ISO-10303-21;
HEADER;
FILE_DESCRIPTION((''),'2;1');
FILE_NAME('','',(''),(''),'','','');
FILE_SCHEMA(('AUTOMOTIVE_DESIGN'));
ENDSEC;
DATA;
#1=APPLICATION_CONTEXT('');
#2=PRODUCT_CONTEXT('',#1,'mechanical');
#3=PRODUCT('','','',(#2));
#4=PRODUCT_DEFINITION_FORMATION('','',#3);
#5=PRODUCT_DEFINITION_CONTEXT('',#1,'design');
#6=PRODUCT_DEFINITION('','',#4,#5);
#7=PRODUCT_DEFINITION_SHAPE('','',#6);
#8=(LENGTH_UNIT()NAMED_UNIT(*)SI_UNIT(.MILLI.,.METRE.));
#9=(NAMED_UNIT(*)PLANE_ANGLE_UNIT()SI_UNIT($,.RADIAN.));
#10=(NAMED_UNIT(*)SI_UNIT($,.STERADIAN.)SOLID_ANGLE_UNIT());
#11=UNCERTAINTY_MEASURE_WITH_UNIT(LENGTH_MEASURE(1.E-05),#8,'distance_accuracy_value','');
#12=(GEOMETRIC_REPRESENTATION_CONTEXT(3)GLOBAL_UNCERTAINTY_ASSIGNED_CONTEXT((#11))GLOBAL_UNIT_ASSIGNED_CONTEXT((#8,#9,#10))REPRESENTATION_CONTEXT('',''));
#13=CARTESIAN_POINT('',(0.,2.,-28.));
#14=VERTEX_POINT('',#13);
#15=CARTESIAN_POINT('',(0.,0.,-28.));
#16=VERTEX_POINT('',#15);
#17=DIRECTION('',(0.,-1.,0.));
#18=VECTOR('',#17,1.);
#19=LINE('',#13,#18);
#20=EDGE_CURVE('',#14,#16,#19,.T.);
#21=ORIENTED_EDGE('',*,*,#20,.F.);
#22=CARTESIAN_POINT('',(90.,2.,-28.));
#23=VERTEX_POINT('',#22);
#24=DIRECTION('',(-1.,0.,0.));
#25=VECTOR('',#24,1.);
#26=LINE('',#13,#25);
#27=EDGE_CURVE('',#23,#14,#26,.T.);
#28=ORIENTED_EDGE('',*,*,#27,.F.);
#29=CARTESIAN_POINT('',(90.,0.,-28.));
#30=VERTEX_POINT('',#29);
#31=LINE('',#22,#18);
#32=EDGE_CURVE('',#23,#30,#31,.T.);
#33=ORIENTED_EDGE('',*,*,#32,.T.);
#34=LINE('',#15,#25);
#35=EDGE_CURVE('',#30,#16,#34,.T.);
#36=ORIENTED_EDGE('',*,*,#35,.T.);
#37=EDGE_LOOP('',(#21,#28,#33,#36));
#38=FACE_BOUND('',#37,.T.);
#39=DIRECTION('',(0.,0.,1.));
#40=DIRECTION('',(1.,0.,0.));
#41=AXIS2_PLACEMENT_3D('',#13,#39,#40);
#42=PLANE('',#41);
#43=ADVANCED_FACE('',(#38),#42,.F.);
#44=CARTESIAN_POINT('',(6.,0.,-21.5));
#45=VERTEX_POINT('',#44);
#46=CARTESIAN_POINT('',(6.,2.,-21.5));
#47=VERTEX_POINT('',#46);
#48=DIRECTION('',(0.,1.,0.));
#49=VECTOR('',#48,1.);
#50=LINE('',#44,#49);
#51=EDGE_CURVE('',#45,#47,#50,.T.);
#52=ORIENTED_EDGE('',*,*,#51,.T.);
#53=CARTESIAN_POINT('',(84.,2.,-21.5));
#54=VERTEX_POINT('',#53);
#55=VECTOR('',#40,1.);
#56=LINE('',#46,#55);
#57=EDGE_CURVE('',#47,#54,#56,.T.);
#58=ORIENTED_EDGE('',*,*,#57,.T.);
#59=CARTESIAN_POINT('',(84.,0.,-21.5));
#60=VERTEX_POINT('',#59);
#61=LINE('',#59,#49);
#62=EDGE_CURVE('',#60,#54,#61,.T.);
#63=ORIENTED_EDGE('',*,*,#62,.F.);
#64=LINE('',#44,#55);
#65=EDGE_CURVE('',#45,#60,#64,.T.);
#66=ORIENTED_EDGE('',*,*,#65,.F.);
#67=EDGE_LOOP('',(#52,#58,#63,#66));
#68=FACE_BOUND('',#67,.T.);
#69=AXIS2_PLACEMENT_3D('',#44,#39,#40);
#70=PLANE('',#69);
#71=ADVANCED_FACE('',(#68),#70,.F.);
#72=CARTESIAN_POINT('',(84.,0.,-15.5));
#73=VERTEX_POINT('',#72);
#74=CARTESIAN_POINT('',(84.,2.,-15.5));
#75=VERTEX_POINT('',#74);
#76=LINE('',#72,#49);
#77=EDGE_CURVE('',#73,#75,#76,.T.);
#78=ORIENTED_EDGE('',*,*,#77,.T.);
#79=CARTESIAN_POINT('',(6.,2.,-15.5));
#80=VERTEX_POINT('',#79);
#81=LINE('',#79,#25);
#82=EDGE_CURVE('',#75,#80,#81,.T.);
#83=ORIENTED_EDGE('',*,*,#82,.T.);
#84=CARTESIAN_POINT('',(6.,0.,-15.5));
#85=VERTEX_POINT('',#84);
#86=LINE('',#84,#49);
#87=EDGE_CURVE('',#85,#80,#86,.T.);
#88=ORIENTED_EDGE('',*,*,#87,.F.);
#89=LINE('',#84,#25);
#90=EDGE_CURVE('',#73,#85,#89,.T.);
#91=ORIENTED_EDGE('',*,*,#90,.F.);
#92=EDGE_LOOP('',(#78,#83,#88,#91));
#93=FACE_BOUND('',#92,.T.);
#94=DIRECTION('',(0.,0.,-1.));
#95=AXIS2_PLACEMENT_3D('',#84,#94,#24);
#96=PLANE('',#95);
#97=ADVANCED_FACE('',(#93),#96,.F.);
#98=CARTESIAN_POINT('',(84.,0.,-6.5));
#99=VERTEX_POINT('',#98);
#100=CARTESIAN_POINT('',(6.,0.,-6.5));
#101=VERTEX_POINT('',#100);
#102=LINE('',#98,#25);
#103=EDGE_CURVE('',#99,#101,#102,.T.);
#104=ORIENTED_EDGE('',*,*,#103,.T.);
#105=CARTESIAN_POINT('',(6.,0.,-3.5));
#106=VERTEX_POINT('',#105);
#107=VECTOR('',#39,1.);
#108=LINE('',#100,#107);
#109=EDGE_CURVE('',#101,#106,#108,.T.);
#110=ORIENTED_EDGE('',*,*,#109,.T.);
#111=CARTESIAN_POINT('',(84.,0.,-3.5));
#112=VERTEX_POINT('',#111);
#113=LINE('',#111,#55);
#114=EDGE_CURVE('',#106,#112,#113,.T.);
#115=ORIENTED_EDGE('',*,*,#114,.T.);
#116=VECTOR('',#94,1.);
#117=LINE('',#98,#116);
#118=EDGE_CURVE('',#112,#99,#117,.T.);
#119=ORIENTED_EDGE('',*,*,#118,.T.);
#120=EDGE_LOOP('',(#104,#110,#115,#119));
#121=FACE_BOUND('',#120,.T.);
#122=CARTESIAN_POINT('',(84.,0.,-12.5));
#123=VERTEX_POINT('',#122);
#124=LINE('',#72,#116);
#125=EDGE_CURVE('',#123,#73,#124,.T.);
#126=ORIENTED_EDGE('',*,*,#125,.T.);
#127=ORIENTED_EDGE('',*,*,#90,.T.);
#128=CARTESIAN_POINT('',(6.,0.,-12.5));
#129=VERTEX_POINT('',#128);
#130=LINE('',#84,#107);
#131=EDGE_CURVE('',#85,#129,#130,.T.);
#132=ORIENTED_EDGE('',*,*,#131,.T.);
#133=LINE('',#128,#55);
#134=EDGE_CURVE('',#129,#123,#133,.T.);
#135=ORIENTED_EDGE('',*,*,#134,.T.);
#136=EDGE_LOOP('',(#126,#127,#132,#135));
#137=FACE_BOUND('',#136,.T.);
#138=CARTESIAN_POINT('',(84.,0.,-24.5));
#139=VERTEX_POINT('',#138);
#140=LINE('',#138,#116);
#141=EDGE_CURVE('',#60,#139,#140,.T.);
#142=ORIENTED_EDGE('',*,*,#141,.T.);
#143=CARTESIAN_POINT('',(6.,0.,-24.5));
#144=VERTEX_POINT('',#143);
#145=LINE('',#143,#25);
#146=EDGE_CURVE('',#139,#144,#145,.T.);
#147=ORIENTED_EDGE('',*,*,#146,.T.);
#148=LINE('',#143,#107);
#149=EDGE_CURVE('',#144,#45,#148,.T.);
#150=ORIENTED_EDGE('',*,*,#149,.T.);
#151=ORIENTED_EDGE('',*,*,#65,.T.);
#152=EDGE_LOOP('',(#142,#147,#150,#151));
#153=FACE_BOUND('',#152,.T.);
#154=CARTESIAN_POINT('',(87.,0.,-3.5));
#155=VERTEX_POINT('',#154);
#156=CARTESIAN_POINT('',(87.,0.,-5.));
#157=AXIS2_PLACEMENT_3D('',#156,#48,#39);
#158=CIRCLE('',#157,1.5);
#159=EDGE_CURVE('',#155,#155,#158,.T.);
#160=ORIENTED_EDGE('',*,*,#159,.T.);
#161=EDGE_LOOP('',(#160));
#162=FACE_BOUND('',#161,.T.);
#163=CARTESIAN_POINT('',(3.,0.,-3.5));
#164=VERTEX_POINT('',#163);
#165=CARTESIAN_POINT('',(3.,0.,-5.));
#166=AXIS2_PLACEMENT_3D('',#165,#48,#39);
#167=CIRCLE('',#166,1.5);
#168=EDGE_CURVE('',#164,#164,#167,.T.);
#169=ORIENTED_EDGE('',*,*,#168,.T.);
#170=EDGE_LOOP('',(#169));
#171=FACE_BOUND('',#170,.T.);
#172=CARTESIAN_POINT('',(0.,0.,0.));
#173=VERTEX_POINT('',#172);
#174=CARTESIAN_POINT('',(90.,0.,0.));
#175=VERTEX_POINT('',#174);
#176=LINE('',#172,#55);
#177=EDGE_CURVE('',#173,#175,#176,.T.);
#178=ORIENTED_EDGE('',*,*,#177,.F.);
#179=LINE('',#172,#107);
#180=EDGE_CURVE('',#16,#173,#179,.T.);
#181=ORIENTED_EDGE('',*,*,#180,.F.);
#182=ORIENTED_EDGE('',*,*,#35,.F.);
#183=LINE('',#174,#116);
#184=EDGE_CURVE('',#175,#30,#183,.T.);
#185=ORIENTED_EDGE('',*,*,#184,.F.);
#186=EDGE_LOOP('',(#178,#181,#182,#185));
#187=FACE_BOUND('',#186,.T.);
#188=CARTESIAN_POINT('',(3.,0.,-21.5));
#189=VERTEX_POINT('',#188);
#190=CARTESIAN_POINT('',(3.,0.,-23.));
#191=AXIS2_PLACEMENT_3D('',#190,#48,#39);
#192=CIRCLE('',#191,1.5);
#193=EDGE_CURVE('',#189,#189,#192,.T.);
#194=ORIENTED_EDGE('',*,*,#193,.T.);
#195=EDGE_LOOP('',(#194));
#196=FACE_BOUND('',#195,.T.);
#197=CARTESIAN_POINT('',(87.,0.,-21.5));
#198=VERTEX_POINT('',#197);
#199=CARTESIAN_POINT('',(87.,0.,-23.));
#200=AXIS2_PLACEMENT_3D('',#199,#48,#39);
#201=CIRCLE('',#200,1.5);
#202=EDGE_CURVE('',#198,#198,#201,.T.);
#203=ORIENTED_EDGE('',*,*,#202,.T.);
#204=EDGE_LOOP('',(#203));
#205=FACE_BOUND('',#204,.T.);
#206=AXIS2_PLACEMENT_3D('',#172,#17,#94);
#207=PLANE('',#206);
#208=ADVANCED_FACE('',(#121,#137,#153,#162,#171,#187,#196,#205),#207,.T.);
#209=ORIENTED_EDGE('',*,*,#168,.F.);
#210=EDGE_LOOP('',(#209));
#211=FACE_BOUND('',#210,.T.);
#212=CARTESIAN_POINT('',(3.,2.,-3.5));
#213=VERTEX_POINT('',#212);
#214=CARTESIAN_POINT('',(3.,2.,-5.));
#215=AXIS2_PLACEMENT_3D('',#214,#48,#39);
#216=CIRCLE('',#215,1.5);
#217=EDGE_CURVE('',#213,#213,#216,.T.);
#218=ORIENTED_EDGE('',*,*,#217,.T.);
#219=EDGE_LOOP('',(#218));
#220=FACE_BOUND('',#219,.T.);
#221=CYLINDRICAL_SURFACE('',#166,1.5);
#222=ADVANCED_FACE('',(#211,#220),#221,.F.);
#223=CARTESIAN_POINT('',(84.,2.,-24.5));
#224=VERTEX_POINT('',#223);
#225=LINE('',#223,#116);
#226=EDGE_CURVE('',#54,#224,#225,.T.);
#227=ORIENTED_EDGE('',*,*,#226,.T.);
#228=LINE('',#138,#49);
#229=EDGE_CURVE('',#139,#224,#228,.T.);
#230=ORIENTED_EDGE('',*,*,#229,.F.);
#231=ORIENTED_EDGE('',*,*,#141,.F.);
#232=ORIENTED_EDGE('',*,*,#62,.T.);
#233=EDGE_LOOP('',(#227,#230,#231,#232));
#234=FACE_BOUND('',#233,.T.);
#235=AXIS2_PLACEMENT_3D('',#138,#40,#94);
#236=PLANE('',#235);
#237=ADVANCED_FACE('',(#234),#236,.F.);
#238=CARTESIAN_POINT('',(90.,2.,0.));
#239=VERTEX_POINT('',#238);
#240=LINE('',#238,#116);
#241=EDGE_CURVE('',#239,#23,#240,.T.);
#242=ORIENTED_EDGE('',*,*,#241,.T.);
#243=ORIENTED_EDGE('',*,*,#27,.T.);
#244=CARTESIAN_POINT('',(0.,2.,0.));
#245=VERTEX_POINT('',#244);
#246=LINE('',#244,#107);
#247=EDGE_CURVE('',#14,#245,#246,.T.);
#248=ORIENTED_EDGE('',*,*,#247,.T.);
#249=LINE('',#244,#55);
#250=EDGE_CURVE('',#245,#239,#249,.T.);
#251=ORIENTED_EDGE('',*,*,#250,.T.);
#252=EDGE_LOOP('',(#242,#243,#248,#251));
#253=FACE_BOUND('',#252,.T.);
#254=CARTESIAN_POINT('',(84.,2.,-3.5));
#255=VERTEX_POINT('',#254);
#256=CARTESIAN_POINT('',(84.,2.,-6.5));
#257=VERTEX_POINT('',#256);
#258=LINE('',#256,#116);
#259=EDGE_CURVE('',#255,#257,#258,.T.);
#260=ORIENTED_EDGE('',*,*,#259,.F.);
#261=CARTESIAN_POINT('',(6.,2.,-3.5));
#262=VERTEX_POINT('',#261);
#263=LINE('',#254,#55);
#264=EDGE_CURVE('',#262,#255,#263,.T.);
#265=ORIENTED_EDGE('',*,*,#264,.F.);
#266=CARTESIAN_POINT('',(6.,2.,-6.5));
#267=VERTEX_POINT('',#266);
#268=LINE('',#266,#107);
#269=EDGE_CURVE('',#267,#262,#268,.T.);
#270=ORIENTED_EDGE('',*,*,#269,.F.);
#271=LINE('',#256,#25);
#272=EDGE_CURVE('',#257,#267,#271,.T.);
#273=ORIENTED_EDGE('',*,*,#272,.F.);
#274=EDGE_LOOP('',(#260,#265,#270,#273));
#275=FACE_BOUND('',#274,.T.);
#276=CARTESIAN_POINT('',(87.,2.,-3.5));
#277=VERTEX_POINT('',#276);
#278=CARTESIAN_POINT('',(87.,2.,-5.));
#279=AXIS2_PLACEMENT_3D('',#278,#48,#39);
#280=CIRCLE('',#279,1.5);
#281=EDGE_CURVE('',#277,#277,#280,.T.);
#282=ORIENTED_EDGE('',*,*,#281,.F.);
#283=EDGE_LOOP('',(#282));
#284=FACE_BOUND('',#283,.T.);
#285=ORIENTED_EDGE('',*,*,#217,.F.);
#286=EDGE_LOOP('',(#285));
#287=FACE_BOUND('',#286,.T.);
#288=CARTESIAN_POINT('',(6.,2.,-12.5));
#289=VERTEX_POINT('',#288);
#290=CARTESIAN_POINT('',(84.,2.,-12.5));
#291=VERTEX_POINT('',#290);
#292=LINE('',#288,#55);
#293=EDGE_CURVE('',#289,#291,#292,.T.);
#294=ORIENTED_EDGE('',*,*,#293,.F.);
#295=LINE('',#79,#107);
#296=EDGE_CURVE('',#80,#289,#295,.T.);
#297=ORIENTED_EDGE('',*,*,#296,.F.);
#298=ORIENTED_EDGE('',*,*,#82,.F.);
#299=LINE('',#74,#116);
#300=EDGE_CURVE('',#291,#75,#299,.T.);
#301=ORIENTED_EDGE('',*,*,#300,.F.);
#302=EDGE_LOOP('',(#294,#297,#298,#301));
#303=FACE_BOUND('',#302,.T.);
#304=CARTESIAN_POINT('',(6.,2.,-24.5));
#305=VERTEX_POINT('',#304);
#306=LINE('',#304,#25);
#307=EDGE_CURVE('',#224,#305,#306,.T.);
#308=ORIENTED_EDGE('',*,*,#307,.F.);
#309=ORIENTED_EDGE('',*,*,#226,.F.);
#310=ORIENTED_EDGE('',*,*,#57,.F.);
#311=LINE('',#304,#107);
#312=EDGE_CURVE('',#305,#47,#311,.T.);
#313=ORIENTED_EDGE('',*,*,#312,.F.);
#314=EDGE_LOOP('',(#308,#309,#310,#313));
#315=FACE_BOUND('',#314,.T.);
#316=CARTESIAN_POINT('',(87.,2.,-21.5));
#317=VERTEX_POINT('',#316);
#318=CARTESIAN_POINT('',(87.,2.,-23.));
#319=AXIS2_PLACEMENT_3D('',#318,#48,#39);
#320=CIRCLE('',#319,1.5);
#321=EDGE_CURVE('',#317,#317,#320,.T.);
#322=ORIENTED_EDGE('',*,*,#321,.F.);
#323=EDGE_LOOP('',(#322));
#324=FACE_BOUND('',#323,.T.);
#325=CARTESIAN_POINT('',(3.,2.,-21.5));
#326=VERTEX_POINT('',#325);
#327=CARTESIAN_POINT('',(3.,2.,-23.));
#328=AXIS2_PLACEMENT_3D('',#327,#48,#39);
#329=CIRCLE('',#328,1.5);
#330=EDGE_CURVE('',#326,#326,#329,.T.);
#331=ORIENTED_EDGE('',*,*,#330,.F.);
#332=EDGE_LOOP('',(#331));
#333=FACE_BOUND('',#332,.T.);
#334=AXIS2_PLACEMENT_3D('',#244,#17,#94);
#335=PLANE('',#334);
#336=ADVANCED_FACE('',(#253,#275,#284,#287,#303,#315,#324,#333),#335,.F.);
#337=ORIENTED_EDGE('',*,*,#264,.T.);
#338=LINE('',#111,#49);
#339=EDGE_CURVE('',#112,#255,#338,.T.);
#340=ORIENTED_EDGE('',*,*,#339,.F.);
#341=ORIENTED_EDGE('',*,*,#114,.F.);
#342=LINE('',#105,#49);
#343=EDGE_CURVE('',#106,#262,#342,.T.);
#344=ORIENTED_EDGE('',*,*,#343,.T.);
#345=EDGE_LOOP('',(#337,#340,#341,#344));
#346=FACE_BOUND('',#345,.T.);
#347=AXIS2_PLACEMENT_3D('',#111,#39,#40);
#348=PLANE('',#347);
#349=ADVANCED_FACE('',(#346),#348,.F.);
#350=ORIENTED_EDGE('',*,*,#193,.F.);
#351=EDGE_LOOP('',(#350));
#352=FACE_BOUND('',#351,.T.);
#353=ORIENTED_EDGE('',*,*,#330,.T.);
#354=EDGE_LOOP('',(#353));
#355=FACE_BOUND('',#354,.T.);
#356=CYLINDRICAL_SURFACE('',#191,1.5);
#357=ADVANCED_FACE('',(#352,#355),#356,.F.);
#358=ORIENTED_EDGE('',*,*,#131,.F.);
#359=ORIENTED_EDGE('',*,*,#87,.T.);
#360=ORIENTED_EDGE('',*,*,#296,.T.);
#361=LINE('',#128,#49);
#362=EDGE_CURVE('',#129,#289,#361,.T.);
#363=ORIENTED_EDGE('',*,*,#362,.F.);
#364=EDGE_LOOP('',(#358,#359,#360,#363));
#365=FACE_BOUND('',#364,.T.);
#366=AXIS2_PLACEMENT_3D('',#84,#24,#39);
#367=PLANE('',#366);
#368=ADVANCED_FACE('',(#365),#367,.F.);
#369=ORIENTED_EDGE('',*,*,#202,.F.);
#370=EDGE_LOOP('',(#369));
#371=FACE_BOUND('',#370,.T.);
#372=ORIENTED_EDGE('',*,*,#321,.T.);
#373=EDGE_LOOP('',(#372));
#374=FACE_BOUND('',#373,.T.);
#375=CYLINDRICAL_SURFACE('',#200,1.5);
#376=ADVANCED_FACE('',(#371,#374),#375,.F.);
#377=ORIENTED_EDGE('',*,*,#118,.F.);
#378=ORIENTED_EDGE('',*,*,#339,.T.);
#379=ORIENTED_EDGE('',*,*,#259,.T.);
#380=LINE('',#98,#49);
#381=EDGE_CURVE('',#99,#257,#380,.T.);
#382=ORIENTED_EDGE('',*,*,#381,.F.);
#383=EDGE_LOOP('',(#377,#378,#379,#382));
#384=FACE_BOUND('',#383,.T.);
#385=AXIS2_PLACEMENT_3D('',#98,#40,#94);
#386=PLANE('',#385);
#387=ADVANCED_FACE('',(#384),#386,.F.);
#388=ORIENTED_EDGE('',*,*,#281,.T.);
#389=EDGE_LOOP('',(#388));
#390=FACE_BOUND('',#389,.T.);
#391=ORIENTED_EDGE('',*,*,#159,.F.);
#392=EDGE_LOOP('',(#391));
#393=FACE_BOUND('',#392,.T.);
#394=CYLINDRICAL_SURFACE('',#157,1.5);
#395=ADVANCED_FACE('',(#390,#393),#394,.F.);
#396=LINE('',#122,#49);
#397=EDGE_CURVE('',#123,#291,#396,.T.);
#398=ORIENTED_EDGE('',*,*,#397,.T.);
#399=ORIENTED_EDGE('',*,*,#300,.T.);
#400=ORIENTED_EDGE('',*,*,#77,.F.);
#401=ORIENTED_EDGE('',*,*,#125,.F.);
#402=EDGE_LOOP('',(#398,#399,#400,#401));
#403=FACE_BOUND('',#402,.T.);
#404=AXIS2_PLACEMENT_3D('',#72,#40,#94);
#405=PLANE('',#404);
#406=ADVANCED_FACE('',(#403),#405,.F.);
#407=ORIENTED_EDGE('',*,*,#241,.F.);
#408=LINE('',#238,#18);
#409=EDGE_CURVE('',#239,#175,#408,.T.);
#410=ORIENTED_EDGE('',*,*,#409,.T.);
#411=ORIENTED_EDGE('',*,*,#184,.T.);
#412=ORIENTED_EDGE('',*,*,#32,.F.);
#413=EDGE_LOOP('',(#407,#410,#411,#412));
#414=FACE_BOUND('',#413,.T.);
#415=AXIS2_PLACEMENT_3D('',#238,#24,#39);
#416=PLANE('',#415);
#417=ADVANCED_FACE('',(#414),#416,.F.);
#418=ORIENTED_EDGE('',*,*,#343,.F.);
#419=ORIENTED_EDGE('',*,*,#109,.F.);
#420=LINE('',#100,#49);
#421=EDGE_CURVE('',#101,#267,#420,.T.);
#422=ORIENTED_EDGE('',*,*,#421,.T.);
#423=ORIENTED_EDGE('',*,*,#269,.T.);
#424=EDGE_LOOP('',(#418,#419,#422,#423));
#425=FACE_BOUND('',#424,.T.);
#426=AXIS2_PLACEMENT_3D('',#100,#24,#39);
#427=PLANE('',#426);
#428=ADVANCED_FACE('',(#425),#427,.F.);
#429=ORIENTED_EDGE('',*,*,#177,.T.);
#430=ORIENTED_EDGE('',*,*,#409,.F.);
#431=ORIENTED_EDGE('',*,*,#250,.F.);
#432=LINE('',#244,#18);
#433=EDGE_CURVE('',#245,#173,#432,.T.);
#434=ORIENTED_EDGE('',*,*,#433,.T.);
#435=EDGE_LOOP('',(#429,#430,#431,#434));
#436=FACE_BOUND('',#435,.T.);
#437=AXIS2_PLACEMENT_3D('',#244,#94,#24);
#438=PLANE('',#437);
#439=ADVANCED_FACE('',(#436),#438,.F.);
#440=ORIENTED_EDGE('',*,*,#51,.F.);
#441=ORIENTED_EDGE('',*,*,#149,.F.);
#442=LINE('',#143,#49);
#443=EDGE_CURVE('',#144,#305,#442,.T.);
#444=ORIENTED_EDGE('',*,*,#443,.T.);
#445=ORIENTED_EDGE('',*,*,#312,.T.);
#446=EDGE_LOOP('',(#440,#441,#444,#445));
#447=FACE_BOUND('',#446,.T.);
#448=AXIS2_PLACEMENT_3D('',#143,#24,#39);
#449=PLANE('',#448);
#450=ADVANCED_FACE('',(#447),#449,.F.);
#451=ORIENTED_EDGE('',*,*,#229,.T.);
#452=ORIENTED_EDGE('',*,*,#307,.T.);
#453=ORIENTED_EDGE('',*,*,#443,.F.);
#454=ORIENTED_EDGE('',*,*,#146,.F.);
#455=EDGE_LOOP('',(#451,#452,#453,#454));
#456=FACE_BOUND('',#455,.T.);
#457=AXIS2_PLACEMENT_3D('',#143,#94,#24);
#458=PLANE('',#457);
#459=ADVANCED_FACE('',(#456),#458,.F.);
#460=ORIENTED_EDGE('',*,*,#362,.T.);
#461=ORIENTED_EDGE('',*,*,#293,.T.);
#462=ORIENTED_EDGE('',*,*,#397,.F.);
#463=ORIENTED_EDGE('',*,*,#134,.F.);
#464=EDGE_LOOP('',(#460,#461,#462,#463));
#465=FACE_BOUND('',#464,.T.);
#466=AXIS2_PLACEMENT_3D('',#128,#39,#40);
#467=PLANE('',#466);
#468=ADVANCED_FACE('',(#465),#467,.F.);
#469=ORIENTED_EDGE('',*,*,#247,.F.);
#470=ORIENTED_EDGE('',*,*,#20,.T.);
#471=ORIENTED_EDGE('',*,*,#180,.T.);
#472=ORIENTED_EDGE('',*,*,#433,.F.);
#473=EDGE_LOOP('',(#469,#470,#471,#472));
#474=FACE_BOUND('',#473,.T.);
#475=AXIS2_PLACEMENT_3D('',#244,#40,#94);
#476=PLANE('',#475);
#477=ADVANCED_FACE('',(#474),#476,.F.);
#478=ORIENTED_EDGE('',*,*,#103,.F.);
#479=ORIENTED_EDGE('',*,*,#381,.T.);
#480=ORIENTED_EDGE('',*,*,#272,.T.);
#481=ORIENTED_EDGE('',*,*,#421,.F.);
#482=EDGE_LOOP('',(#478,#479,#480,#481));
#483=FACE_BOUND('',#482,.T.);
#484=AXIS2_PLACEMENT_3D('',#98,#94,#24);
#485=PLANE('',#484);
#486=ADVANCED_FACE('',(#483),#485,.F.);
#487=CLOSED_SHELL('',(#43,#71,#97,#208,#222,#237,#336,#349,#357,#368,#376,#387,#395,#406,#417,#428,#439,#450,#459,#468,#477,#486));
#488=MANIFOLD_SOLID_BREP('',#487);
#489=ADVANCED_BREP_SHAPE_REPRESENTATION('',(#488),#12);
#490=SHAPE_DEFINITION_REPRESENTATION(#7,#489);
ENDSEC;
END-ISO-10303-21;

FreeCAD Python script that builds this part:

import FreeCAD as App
import Part
import Sketcher
from FreeCAD import Vector


def add_polygon(sketch, points):
    """Adds a closed chain of lines whose ends are joined by coincident constraints."""
    first, n = sketch.GeometryCount, len(points)
    for a, b in zip(points, points[1:] + points[:1]):
        sketch.addGeometry(Part.LineSegment(App.Vector(*a, 0), App.Vector(*b, 0)), False)
    for i in range(n):
        sketch.addConstraint(Sketcher.Constraint("Coincident", first + i, 2, first + (i + 1) % n, 1))

doc = App.newDocument("Part")
body = doc.addObject("PartDesign::Body", "Body")

sketch1 = doc.addObject("Sketcher::SketchObject", "Sketch")
body.addObject(sketch1)
sketch1.AttachmentSupport = (doc.XZ_Plane, [""])
sketch1.MapMode = "FlatFace"
add_polygon(sketch1, [(0, -28), (0, 0), (90, 0), (90, -28)])
sketch1.addConstraint(Sketcher.Constraint("Vertical", 0))
sketch1.addConstraint(Sketcher.Constraint("Horizontal", 1))
sketch1.addConstraint(Sketcher.Constraint("Vertical", 2))
sketch1.addConstraint(Sketcher.Constraint("Horizontal", 3))
sketch1.addConstraint(Sketcher.Constraint("Coincident", 0, 2, -1, 1))
sketch1.addConstraint(Sketcher.Constraint("DistanceX", 1, 1, 1, 2, 90.0))
sketch1.addConstraint(Sketcher.Constraint("DistanceY", 0, 1, 0, 2, 28.0))
pad1 = doc.addObject("PartDesign::Pad", "Pad")
body.addObject(pad1)
pad1.Profile = sketch1
pad1.Length = 2
pad1.Reversed = True

sketch2 = doc.addObject("Sketcher::SketchObject", "Sketch001")
body.addObject(sketch2)
sketch2.AttachmentSupport = (doc.XZ_Plane, [""])
sketch2.MapMode = "FlatFace"
sketch2.AttachmentOffset = App.Placement(Vector(0, 0, -2), App.Rotation())
sketch2.addGeometry(Part.Circle(Vector(3, -23, 0), Vector(0, 0, 1), 1.5), False)
sketch2.addGeometry(Part.Circle(Vector(3, -5, 0), Vector(0, 0, 1), 1.5), False)
sketch2.addGeometry(Part.Circle(Vector(87, -23, 0), Vector(0, 0, 1), 1.5), False)
sketch2.addGeometry(Part.Circle(Vector(87, -5, 0), Vector(0, 0, 1), 1.5), False)
add_polygon(sketch2, [(6, -15.5), (6, -12.5), (84, -12.5), (84, -15.5)])
add_polygon(sketch2, [(6, -6.5), (6, -3.5), (84, -3.5), (84, -6.5)])
add_polygon(sketch2, [(6, -24.5), (6, -21.5), (84, -21.5), (84, -24.5)])
sketch2.addConstraint(Sketcher.Constraint("Vertical", 4))
sketch2.addConstraint(Sketcher.Constraint("Horizontal", 5))
sketch2.addConstraint(Sketcher.Constraint("Vertical", 6))
sketch2.addConstraint(Sketcher.Constraint("Horizontal", 7))
sketch2.addConstraint(Sketcher.Constraint("Vertical", 8))
sketch2.addConstraint(Sketcher.Constraint("Horizontal", 9))
sketch2.addConstraint(Sketcher.Constraint("Vertical", 10))
sketch2.addConstraint(Sketcher.Constraint("Horizontal", 11))
sketch2.addConstraint(Sketcher.Constraint("Vertical", 12))
sketch2.addConstraint(Sketcher.Constraint("Horizontal", 13))
sketch2.addConstraint(Sketcher.Constraint("Vertical", 14))
sketch2.addConstraint(Sketcher.Constraint("Horizontal", 15))
sketch2.addConstraint(Sketcher.Constraint("Equal", 0, 1))
sketch2.addConstraint(Sketcher.Constraint("Equal", 1, 2))
sketch2.addConstraint(Sketcher.Constraint("Equal", 2, 3))
sketch2.addConstraint(Sketcher.Constraint("Horizontal", 0, 3, 2, 3))
sketch2.addConstraint(Sketcher.Constraint("Horizontal", 1, 3, 3, 3))
sketch2.addConstraint(Sketcher.Constraint("Vertical", 0, 3, 1, 3))
sketch2.addConstraint(Sketcher.Constraint("Vertical", 2, 3, 3, 3))
sketch2.addConstraint(Sketcher.Constraint("Vertical", 7, 2, 8, 2))
sketch2.addConstraint(Sketcher.Constraint("Vertical", 6, 2, 9, 2))
sketch2.addConstraint(Sketcher.Constraint("Vertical", 11, 2, 12, 2))
sketch2.addConstraint(Sketcher.Constraint("Vertical", 10, 2, 13, 2))
sketch2.addConstraint(Sketcher.Constraint("Equal", 6, 8))
sketch2.addConstraint(Sketcher.Constraint("Equal", 10, 12))
sketch2.addConstraint(Sketcher.Constraint("Diameter", 0, 3.0))
sketch2.addConstraint(Sketcher.Constraint("DistanceX", 5, 1, 5, 2, 78.0))
sketch2.addConstraint(Sketcher.Constraint("DistanceY", 4, 1, 4, 2, 3.0))
sketch2.addConstraint(Sketcher.Constraint("DistanceX", -1, 1, 0, 3, 3.0))
sketch2.addConstraint(Sketcher.Constraint("DistanceY", 0, 3, -1, 1, 23.0))
sketch2.addConstraint(Sketcher.Constraint("DistanceY", 1, 3, -1, 1, 5.0))
sketch2.addConstraint(Sketcher.Constraint("DistanceX", -1, 1, 2, 3, 87.0))
sketch2.addConstraint(Sketcher.Constraint("DistanceX", -1, 1, 4, 2, 6.0))
sketch2.addConstraint(Sketcher.Constraint("DistanceY", 4, 2, 8, 2, 9.0))
sketch2.addConstraint(Sketcher.Constraint("DistanceY", 12, 2, 7, 2, 6.0))
sketch2.addConstraint(Sketcher.Constraint("DistanceY", 4, 2, -1, 1, 12.5))
pocket1 = doc.addObject("PartDesign::Pocket", "Pocket")
body.addObject(pocket1)
pocket1.Profile = sketch2
pocket1.Type = "ThroughAll"
pocket1.Reversed = True

doc.recompute()
